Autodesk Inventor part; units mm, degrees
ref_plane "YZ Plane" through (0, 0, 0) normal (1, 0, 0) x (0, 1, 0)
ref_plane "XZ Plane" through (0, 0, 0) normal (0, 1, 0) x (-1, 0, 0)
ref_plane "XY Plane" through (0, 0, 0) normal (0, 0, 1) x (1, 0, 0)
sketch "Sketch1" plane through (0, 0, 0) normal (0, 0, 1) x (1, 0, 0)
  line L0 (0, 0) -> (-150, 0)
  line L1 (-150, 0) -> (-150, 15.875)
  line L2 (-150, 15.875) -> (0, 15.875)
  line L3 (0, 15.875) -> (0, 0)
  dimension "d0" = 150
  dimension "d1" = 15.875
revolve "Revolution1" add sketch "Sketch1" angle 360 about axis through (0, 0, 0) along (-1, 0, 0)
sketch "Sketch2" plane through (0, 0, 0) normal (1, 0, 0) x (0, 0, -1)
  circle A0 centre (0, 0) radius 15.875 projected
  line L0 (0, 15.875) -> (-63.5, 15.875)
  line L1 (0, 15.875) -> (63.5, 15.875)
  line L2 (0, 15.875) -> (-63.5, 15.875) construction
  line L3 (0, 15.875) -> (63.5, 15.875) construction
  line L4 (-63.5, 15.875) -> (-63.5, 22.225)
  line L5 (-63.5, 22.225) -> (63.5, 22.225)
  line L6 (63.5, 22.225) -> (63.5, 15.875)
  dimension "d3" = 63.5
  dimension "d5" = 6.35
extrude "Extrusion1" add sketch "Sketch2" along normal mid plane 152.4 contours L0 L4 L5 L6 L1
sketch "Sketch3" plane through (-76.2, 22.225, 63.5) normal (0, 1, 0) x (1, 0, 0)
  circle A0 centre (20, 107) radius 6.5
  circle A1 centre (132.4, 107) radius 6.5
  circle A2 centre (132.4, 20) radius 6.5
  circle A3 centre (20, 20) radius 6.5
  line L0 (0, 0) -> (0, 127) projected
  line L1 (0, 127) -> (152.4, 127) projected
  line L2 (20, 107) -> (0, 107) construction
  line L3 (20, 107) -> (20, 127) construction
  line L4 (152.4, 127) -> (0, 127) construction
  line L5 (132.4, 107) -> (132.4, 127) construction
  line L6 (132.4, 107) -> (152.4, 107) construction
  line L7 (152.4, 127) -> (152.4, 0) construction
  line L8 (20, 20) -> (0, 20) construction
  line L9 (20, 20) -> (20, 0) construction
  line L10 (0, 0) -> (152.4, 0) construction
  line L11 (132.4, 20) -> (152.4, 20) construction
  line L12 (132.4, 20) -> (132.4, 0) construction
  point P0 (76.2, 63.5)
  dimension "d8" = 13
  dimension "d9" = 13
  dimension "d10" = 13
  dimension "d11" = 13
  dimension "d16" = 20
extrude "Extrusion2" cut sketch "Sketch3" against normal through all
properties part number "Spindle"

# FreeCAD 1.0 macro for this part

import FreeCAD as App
import Part
import Sketcher

V = App.Vector
Q = App.Units.Quantity


def add_polygon(sketch, points):
    """Adds a closed chain of lines whose ends are joined by coincident constraints."""
    first, n = sketch.GeometryCount, len(points)
    for a, b in zip(points, points[1:] + points[:1]):
        sketch.addGeometry(Part.LineSegment(App.Vector(*a, 0), App.Vector(*b, 0)), False)
    for i in range(n):
        sketch.addConstraint(Sketcher.Constraint("Coincident", first + i, 2, first + (i + 1) % n, 1))

doc = App.newDocument("Part")
params = doc.addObject("Spreadsheet::Sheet", "Params")
for row, (alias, value) in enumerate([
    ("sketch1_height", "0.625 in"),
    ("revolution_angle", "360 deg"),
    ("sketch2_width", "0.25 in"),
    ("pad1_length", "6 in"),
], start=1):
    params.set(f"A{row}", alias)
    params.set(f"B{row}", "=" + value)
    params.setAlias(f"B{row}", alias)

body = doc.addObject("PartDesign::Body", "Body")
body.AllowCompound = True

# Sketch on XY plane
sketch1 = body.newObject("Sketcher::SketchObject", "Sketch")
sketch1.AttachmentSupport = (doc.getObject("XY_Plane"), [""])
sketch1.MapMode = "FlatFace"
add_polygon(sketch1, [(-150, 0), (0, 0), (0, 16), (-150, 16)])  # lines 0-3
sketch1.addConstraint([
    Sketcher.Constraint("Horizontal", 0),
    Sketcher.Constraint("Vertical", 1),
    Sketcher.Constraint("Horizontal", 2),
    Sketcher.Constraint("Vertical", 3),
    Sketcher.Constraint("Coincident", 0, 2, -1, 1),
    Sketcher.Constraint("DistanceY", 1, 1, 1, 2, Q("0.625 in")),
    Sketcher.Constraint("DistanceX", 0, 1, 0, 2, Q("5.9055 in")),
])
sketch1.setExpression("Constraints[9]", "Params.sketch1_height")
revolution = body.newObject("PartDesign::Revolution", "Revolution")
revolution.Profile = sketch1
revolution.ReferenceAxis = (sketch1, ["H_Axis"])
revolution.setExpression("Angle", "Params.revolution_angle")

# Sketch on YZ plane
sketch2 = body.newObject("Sketcher::SketchObject", "Sketch001")
sketch2.AttachmentSupport = (doc.getObject("YZ_Plane"), [""])
sketch2.MapMode = "FlatFace"
add_polygon(sketch2, [(16, 64), (16, -64), (22, -64), (22, 64)])  # lines 0-3
sketch2.addConstraint([
    Sketcher.Constraint("Vertical", 0),
    Sketcher.Constraint("Horizontal", 1),
    Sketcher.Constraint("Vertical", 2),
    Sketcher.Constraint("Horizontal", 3),
    Sketcher.Constraint("DistanceX", 1, 1, 1, 2, Q("0.25 in")),
    Sketcher.Constraint("DistanceY", 0, 2, -1, 1, Q("2.5 in")),
    Sketcher.Constraint("DistanceY", -1, 1, 2, 2, Q("2.5 in")),
    Sketcher.Constraint("DistanceX", -1, 1, 0, 2, Q("0.625 in")),
])
sketch2.setExpression("Constraints[8]", "Params.sketch2_width")
pad1 = body.newObject("PartDesign::Pad", "Pad")
pad1.Profile = sketch2
pad1.setExpression("Length", "Params.pad1_length")
pad1.Midplane = True

# Sketch on XZ plane
sketch3 = body.newObject("Sketcher::SketchObject", "Sketch002")
sketch3.AttachmentSupport = (doc.getObject("XZ_Plane"), [""])
sketch3.MapMode = "FlatFace"
sketch3.AttachmentOffset = App.Placement(V(0, 0, -0.875 * 25.4), App.Rotation())
sketch3.addGeometry([
    Part.Circle(V(-56, -44, 0), V(0, 0, 1), 6),
    Part.Circle(V(56, -44, 0), V(0, 0, 1), 6),
    Part.Circle(V(56, 44, 0), V(0, 0, 1), 6),
    Part.Circle(V(-56, 44, 0), V(0, 0, 1), 6),
], False)
sketch3.addConstraint([
    Sketcher.Constraint("Equal", 0, 1),
    Sketcher.Constraint("Equal", 1, 2),
    Sketcher.Constraint("Equal", 2, 3),
    Sketcher.Constraint("Symmetric", 0, 3, 2, 3, -1, 1),
    Sketcher.Constraint("Symmetric", 1, 3, 3, 3, -1, 1),
    Sketcher.Constraint("Symmetric", 0, 3, 1, 3, -2),
    Sketcher.Constraint("Diameter", 0, Q("0.5118 in")),
    Sketcher.Constraint("DistanceX", 0, 3, -1, 1, Q("2.2126 in")),
    Sketcher.Constraint("DistanceY", 0, 3, -1, 1, Q("1.7126 in")),
])
pocket1 = body.newObject("PartDesign::Pocket", "Pocket")
pocket1.Profile = sketch3
pocket1.Type = "ThroughAll"
pocket1.Reversed = True

doc.recompute()
